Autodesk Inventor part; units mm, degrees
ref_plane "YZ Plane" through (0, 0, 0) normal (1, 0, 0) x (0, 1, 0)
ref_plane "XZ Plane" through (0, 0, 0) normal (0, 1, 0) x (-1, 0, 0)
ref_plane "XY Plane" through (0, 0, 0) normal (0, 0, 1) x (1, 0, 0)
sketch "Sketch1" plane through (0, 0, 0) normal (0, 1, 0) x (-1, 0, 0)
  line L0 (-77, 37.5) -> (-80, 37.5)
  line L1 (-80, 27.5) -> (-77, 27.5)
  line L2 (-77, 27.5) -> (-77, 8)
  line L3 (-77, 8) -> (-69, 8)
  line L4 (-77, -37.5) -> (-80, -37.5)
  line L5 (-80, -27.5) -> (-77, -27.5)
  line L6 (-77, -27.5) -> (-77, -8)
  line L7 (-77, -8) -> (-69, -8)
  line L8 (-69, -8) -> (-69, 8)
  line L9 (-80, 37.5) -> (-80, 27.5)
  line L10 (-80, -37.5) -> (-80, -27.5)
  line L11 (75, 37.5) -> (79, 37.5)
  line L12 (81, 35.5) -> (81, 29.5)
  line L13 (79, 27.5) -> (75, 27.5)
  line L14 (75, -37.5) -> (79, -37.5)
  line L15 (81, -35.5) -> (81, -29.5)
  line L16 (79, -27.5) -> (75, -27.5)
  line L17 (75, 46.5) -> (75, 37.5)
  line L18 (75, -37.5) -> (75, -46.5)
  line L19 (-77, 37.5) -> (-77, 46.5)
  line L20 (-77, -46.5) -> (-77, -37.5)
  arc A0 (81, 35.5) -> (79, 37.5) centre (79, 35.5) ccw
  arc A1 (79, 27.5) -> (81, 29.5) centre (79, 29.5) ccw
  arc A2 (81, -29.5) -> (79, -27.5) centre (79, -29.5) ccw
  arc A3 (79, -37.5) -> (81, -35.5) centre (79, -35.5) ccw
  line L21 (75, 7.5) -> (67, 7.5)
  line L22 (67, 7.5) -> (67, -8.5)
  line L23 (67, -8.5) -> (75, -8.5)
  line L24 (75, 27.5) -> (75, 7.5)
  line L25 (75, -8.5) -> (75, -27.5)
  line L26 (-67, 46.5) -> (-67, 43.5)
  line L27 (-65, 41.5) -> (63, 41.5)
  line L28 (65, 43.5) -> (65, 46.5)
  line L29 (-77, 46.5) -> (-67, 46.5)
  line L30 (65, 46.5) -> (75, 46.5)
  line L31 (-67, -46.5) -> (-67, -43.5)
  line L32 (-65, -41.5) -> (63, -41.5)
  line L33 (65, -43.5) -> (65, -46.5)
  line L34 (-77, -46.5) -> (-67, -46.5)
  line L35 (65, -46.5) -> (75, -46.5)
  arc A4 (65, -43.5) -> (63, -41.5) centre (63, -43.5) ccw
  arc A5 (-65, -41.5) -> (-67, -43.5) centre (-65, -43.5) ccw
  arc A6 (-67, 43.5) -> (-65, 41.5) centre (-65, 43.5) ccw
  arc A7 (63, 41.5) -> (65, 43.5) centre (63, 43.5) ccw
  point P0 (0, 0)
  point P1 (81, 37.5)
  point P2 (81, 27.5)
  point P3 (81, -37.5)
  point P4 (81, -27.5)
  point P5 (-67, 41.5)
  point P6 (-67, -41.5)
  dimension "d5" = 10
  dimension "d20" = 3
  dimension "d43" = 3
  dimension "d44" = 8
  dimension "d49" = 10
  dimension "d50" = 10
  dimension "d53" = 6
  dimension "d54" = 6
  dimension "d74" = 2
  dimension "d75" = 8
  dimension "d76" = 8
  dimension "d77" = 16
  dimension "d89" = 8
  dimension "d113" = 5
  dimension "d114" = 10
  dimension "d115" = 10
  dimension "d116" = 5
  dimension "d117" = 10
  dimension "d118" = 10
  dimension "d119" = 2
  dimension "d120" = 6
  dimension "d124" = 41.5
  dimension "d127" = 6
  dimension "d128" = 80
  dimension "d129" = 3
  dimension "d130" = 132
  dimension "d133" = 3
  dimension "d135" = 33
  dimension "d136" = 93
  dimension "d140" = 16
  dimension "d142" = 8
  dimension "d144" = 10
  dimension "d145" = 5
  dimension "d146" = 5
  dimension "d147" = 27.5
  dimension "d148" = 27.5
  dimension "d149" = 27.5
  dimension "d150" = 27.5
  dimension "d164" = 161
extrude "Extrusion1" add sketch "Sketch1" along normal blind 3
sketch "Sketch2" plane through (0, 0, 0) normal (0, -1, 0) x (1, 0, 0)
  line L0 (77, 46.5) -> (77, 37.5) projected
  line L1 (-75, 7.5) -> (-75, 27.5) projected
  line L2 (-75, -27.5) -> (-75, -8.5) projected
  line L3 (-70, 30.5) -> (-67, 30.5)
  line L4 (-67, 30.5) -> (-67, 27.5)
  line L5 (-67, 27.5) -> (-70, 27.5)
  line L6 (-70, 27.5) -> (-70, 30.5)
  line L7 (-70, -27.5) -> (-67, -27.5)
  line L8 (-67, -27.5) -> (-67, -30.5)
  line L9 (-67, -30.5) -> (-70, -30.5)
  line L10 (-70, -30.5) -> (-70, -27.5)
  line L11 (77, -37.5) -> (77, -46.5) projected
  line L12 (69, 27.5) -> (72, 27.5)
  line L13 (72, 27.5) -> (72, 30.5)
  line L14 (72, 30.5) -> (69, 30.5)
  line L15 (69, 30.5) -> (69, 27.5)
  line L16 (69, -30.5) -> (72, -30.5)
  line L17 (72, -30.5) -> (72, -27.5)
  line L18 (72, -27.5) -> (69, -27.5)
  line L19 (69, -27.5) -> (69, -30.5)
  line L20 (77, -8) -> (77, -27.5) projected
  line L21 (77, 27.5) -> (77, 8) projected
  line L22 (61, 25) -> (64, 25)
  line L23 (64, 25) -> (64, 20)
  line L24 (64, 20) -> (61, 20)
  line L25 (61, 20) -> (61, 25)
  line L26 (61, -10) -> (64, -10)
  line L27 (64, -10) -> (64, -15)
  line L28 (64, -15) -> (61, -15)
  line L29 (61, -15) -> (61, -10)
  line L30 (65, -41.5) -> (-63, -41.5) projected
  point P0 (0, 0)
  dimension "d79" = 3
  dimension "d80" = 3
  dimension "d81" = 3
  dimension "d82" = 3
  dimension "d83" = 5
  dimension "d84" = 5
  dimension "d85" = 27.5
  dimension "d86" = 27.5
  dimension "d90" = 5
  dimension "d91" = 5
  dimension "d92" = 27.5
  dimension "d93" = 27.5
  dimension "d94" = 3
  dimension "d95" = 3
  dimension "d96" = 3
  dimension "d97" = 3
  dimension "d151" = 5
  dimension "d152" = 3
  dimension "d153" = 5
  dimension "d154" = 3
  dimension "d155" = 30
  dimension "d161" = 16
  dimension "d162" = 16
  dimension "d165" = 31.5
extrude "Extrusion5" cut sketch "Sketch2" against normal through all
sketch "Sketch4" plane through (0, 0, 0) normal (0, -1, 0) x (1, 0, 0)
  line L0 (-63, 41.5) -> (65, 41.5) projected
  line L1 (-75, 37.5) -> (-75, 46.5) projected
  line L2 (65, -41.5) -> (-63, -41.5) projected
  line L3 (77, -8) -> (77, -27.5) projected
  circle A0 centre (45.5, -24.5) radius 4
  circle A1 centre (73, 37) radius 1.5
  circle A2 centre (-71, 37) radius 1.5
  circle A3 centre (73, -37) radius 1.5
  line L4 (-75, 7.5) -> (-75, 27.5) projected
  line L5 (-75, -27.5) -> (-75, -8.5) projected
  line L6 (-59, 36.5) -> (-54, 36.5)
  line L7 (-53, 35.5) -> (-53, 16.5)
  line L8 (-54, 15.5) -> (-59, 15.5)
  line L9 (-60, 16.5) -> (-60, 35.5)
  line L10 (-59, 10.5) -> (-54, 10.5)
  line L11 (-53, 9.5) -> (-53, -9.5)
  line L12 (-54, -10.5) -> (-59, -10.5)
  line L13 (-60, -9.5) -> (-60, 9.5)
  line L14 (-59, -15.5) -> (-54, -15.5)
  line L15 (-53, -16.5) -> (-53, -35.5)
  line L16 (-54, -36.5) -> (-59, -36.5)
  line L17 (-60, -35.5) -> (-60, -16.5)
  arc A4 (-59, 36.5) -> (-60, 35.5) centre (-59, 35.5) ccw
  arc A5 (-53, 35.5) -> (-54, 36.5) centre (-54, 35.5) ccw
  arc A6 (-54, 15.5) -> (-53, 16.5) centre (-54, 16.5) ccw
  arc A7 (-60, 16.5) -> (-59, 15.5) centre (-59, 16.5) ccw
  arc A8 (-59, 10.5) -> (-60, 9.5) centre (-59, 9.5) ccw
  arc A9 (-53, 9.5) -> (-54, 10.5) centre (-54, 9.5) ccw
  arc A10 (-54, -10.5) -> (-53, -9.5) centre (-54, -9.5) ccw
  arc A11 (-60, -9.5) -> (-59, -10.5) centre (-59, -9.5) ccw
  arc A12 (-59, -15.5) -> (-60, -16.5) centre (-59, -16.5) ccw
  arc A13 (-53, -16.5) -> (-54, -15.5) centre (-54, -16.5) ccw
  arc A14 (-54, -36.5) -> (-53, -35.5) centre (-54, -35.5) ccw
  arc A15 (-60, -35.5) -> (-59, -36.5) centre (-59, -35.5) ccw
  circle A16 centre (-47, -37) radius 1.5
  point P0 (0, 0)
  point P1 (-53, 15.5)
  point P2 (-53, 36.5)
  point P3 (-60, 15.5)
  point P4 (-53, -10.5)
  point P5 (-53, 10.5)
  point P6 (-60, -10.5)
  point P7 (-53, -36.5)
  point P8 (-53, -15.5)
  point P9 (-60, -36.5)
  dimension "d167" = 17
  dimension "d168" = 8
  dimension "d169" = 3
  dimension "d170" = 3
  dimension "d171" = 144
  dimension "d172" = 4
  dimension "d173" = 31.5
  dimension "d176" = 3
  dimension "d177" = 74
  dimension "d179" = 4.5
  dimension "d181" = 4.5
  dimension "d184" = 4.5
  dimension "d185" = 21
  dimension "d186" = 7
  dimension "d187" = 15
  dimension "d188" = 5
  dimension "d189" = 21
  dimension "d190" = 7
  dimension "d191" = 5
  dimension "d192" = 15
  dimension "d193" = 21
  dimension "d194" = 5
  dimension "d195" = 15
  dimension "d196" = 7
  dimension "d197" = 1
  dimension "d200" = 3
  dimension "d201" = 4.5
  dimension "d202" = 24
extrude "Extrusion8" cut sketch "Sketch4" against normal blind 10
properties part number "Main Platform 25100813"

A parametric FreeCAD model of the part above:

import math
import FreeCAD as App
import Part
import Sketcher
Q = App.Units.Quantity

doc = App.newDocument("Part")
params = doc.addObject("Spreadsheet::Sheet", "Params")
for row, (alias, value) in enumerate([
    ("sketch1_radius", "2 mm"),
    ("sketch1_width", "3 mm"),
    ("sketch1_width2", "8 mm"),
    ("sketch1_width3", "10 mm"),
    ("sketch1_height", "16 mm"),
    ("pad1_length", "3 mm"),
    ("sketch2_width", "3 mm"),
    ("sketch2_height", "5 mm"),
    ("sketch3_diameter", "8 mm"),
    ("sketch3_diameter2", "3 mm"),
    ("sketch3_radius", "1 mm"),
    ("sketch3_width", "5 mm"),
    ("sketch3_height", "19 mm"),
    ("pocket2_length", "10 mm"),
], start=1):
    params.set(f"A{row}", alias)
    params.set(f"B{row}", "=" + value)
    params.setAlias(f"B{row}", alias)

body = doc.addObject("PartDesign::Body", "Body")

# Sketch on XZ plane
sketch1 = body.newObject("Sketcher::SketchObject", "Sketch")
sketch1.AttachmentSupport = (doc.getObject("XZ_Plane"), [""])
sketch1.MapMode = "FlatFace"
sketch1.addGeometry([
    Part.LineSegment(App.Vector(77, 46.5, 0), App.Vector(77, 37.5, 0)),  # 0
    Part.LineSegment(App.Vector(77, 37.5, 0), App.Vector(80, 37.5, 0)),  # 1
    Part.LineSegment(App.Vector(80, 37.5, 0), App.Vector(80, 27.5, 0)),  # 2
    Part.LineSegment(App.Vector(80, 27.5, 0), App.Vector(77, 27.5, 0)),  # 3
    Part.LineSegment(App.Vector(77, 27.5, 0), App.Vector(77, 8, 0)),  # 4
    Part.LineSegment(App.Vector(77, 8, 0), App.Vector(69, 8, 0)),  # 5
    Part.LineSegment(App.Vector(69, 8, 0), App.Vector(69, -8, 0)),  # 6
    Part.LineSegment(App.Vector(69, -8, 0), App.Vector(77, -8, 0)),  # 7
    Part.LineSegment(App.Vector(77, -8, 0), App.Vector(77, -27.5, 0)),  # 8
    Part.LineSegment(App.Vector(77, -27.5, 0), App.Vector(80, -27.5, 0)),  # 9
    Part.LineSegment(App.Vector(80, -27.5, 0), App.Vector(80, -37.5, 0)),  # 10
    Part.LineSegment(App.Vector(80, -37.5, 0), App.Vector(77, -37.5, 0)),  # 11
    Part.LineSegment(App.Vector(77, -37.5, 0), App.Vector(77, -46.5, 0)),  # 12
    Part.LineSegment(App.Vector(77, -46.5, 0), App.Vector(67, -46.5, 0)),  # 13
    Part.LineSegment(App.Vector(67, -46.5, 0), App.Vector(67, -43.5, 0)),  # 14
    Part.ArcOfCircle(Part.Circle(App.Vector(65, -43.5, 0), App.Vector(0, 0, 1), 2), math.radians(0), math.radians(90)),  # 15
    Part.LineSegment(App.Vector(65, -41.5, 0), App.Vector(-63, -41.5, 0)),  # 16
    Part.ArcOfCircle(Part.Circle(App.Vector(-63, -43.5, 0), App.Vector(0, 0, 1), 2), math.radians(90), math.radians(180)),  # 17
    Part.LineSegment(App.Vector(-65, -43.5, 0), App.Vector(-65, -46.5, 0)),  # 18
    Part.LineSegment(App.Vector(-65, -46.5, 0), App.Vector(-75, -46.5, 0)),  # 19
    Part.LineSegment(App.Vector(-75, -46.5, 0), App.Vector(-75, -37.5, 0)),  # 20
    Part.LineSegment(App.Vector(-75, -37.5, 0), App.Vector(-79, -37.5, 0)),  # 21
    Part.ArcOfCircle(Part.Circle(App.Vector(-79, -35.5, 0), App.Vector(0, 0, 1), 2), math.radians(180), math.radians(270)),  # 22
    Part.LineSegment(App.Vector(-81, -35.5, 0), App.Vector(-81, -29.5, 0)),  # 23
    Part.ArcOfCircle(Part.Circle(App.Vector(-79, -29.5, 0), App.Vector(0, 0, 1), 2), math.radians(90), math.radians(180)),  # 24
    Part.LineSegment(App.Vector(-79, -27.5, 0), App.Vector(-75, -27.5, 0)),  # 25
    Part.LineSegment(App.Vector(-75, -27.5, 0), App.Vector(-75, -8.5, 0)),  # 26
    Part.LineSegment(App.Vector(-75, -8.5, 0), App.Vector(-67, -8.5, 0)),  # 27
    Part.LineSegment(App.Vector(-67, -8.5, 0), App.Vector(-67, 7.5, 0)),  # 28
    Part.LineSegment(App.Vector(-67, 7.5, 0), App.Vector(-75, 7.5, 0)),  # 29
    Part.LineSegment(App.Vector(-75, 7.5, 0), App.Vector(-75, 27.5, 0)),  # 30
    Part.LineSegment(App.Vector(-75, 27.5, 0), App.Vector(-79, 27.5, 0)),  # 31
    Part.ArcOfCircle(Part.Circle(App.Vector(-79, 29.5, 0), App.Vector(0, 0, 1), 2), math.radians(180), math.radians(270)),  # 32
    Part.LineSegment(App.Vector(-81, 29.5, 0), App.Vector(-81, 35.5, 0)),  # 33
    Part.ArcOfCircle(Part.Circle(App.Vector(-79, 35.5, 0), App.Vector(0, 0, 1), 2), math.radians(90), math.radians(180)),  # 34
    Part.LineSegment(App.Vector(-79, 37.5, 0), App.Vector(-75, 37.5, 0)),  # 35
    Part.LineSegment(App.Vector(-75, 37.5, 0), App.Vector(-75, 46.5, 0)),  # 36
    Part.LineSegment(App.Vector(-75, 46.5, 0), App.Vector(-65, 46.5, 0)),  # 37
    Part.LineSegment(App.Vector(-65, 46.5, 0), App.Vector(-65, 43.5, 0)),  # 38
    Part.ArcOfCircle(Part.Circle(App.Vector(-63, 43.5, 0), App.Vector(0, 0, 1), 2), math.radians(180), math.radians(270)),  # 39
    Part.LineSegment(App.Vector(-63, 41.5, 0), App.Vector(65, 41.5, 0)),  # 40
    Part.ArcOfCircle(Part.Circle(App.Vector(65, 43.5, 0), App.Vector(0, 0, 1), 2), math.radians(-90), math.radians(0)),  # 41
    Part.LineSegment(App.Vector(67, 43.5, 0), App.Vector(67, 46.5, 0)),  # 42
    Part.LineSegment(App.Vector(67, 46.5, 0), App.Vector(77, 46.5, 0)),  # 43
], False)
sketch1.addConstraint([
    Sketcher.Constraint("Coincident", 0, 2, 1, 1),
    Sketcher.Constraint("Coincident", 1, 2, 2, 1),
    Sketcher.Constraint("Coincident", 2, 2, 3, 1),
    Sketcher.Constraint("Coincident", 3, 2, 4, 1),
    Sketcher.Constraint("Coincident", 4, 2, 5, 1),
    Sketcher.Constraint("Coincident", 5, 2, 6, 1),
    Sketcher.Constraint("Coincident", 6, 2, 7, 1),
    Sketcher.Constraint("Coincident", 7, 2, 8, 1),
    Sketcher.Constraint("Coincident", 8, 2, 9, 1),
    Sketcher.Constraint("Coincident", 9, 2, 10, 1),
    Sketcher.Constraint("Coincident", 10, 2, 11, 1),
    Sketcher.Constraint("Coincident", 11, 2, 12, 1),
    Sketcher.Constraint("Coincident", 12, 2, 13, 1),
    Sketcher.Constraint("Coincident", 13, 2, 14, 1),
    Sketcher.Constraint("Tangent", 14, 2, 15, 1),
    Sketcher.Constraint("Tangent", 15, 2, 16, 1),
    Sketcher.Constraint("Tangent", 16, 2, 17, 1),
    Sketcher.Constraint("Tangent", 17, 2, 18, 1),
    Sketcher.Constraint("Coincident", 18, 2, 19, 1),
    Sketcher.Constraint("Coincident", 19, 2, 20, 1),
    Sketcher.Constraint("Coincident", 20, 2, 21, 1),
    Sketcher.Constraint("Tangent", 21, 2, 22, 2),
    Sketcher.Constraint("Tangent", 22, 1, 23, 1),
    Sketcher.Constraint("Tangent", 23, 2, 24, 2),
    Sketcher.Constraint("Tangent", 24, 1, 25, 1),
    Sketcher.Constraint("Coincident", 25, 2, 26, 1),
    Sketcher.Constraint("Coincident", 26, 2, 27, 1),
    Sketcher.Constraint("Coincident", 27, 2, 28, 1),
    Sketcher.Constraint("Coincident", 28, 2, 29, 1),
    Sketcher.Constraint("Coincident", 29, 2, 30, 1),
    Sketcher.Constraint("Coincident", 30, 2, 31, 1),
    Sketcher.Constraint("Tangent", 31, 2, 32, 2),
    Sketcher.Constraint("Tangent", 32, 1, 33, 1),
    Sketcher.Constraint("Tangent", 33, 2, 34, 2),
    Sketcher.Constraint("Tangent", 34, 1, 35, 1),
    Sketcher.Constraint("Coincident", 35, 2, 36, 1),
    Sketcher.Constraint("Coincident", 36, 2, 37, 1),
    Sketcher.Constraint("Coincident", 37, 2, 38, 1),
    Sketcher.Constraint("Tangent", 38, 2, 39, 1),
    Sketcher.Constraint("Tangent", 39, 2, 40, 1),
    Sketcher.Constraint("Tangent", 40, 2, 41, 1),
    Sketcher.Constraint("Tangent", 41, 2, 42, 1),
    Sketcher.Constraint("Coincident", 42, 2, 43, 1),
    Sketcher.Constraint("Coincident", 43, 2, 0, 1),
    Sketcher.Constraint("Vertical", 0),
    Sketcher.Constraint("Horizontal", 1),
    Sketcher.Constraint("Vertical", 2),
    Sketcher.Constraint("Horizontal", 3),
    Sketcher.Constraint("Vertical", 4),
    Sketcher.Constraint("Horizontal", 5),
    Sketcher.Constraint("Vertical", 6),
    Sketcher.Constraint("Horizontal", 7),
    Sketcher.Constraint("Vertical", 8),
    Sketcher.Constraint("Horizontal", 9),
    Sketcher.Constraint("Vertical", 10),
    Sketcher.Constraint("Horizontal", 11),
    Sketcher.Constraint("Vertical", 12),
    Sketcher.Constraint("Horizontal", 13),
    Sketcher.Constraint("Vertical", 14),
    Sketcher.Constraint("Horizontal", 16),
    Sketcher.Constraint("Vertical", 18),
    Sketcher.Constraint("Horizontal", 19),
    Sketcher.Constraint("Vertical", 20),
    Sketcher.Constraint("Horizontal", 21),
    Sketcher.Constraint("Vertical", 23),
    Sketcher.Constraint("Horizontal", 25),
    Sketcher.Constraint("Vertical", 26),
    Sketcher.Constraint("Horizontal", 27),
    Sketcher.Constraint("Vertical", 28),
    Sketcher.Constraint("Horizontal", 29),
    Sketcher.Constraint("Vertical", 30),
    Sketcher.Constraint("Horizontal", 31),
    Sketcher.Constraint("Vertical", 33),
    Sketcher.Constraint("Horizontal", 35),
    Sketcher.Constraint("Vertical", 36),
    Sketcher.Constraint("Horizontal", 37),
    Sketcher.Constraint("Vertical", 38),
    Sketcher.Constraint("Horizontal", 40),
    Sketcher.Constraint("Vertical", 42),
    Sketcher.Constraint("Horizontal", 43),
    Sketcher.Constraint("Equal", 15, 17),
    Sketcher.Constraint("Equal", 17, 22),
    Sketcher.Constraint("Equal", 22, 24),
    Sketcher.Constraint("Equal", 24, 32),
    Sketcher.Constraint("Equal", 32, 34),
    Sketcher.Constraint("Equal", 34, 39),
    Sketcher.Constraint("Equal", 39, 41),
    Sketcher.Constraint("Symmetric", 24, 3, 32, 3, -1),
    Sketcher.Constraint("Symmetric", 17, 3, 39, 3, -1),
    Sketcher.Constraint("Symmetric", 4, 2, 7, 2, -1),
    Sketcher.Constraint("Symmetric", 2, 2, 9, 2, -1),
    Sketcher.Constraint("Symmetric", 0, 2, 11, 2, -1),
    Sketcher.Constraint("Symmetric", 20, 2, 35, 2, -1),
    Sketcher.Constraint("Symmetric", 13, 2, 42, 2, -1),
    Sketcher.Constraint("Horizontal", 13, 2, 18, 2),
    Sketcher.Constraint("Horizontal", 11, 2, 20, 2),
    Sketcher.Constraint("Horizontal", 9, 2, 24, 1),
    Sketcher.Constraint("Horizontal", 37, 2, 42, 2),
    Sketcher.Constraint("Vertical", 0, 2, 3, 2),
    Sketcher.Constraint("Vertical", 20, 2, 25, 2),
    Sketcher.Constraint("Vertical", 26, 2, 29, 2),
    Sketcher.Constraint("Equal", 13, 19),
    Sketcher.Constraint("Equal", 7, 27),
    Sketcher.Constraint("Equal", 43, 2),
    Sketcher.Constraint("Equal", 11, 14),
    Sketcher.Constraint("Equal", 6, 28),
    Sketcher.Constraint("Radius", 15, Q("2 mm")),
    Sketcher.Constraint("DistanceX", 1, 1, 1, 2, Q("3 mm")),
    Sketcher.Constraint("DistanceX", 5, 2, 5, 1, Q("8 mm")),
    Sketcher.Constraint("DistanceX", 13, 2, 13, 1, Q("10 mm")),
    Sketcher.Constraint("DistanceY", 6, 2, 6, 1, Q("16 mm")),
    Sketcher.Constraint("DistanceX", -1, 1, 1, 2, Q("80 mm")),
    Sketcher.Constraint("DistanceX", 22, 3, 17, 3, Q("16 mm")),
    Sketcher.Constraint("DistanceY", 17, 3, 22, 3, Q("8 mm")),
    Sketcher.Constraint("DistanceY", -1, 1, 2, 2, Q("27.5 mm")),
    Sketcher.Constraint("DistanceX", 16, 2, 16, 1, Q("128 mm")),
    Sketcher.Constraint("DistanceY", 26, 1, 26, 2, Q("19 mm")),
])
sketch1.setExpression("Constraints[106]", "Params.sketch1_radius")
sketch1.setExpression("Constraints[107]", "Params.sketch1_width")
sketch1.setExpression("Constraints[108]", "Params.sketch1_width2")
sketch1.setExpression("Constraints[109]", "Params.sketch1_width3")
sketch1.setExpression("Constraints[110]", "Params.sketch1_height")
pad1 = body.newObject("PartDesign::Pad", "Pad")
pad1.Profile = sketch1
pad1.setExpression("Length", "Params.pad1_length")
pad1.Reversed = True

# Sketch on XZ plane
sketch2 = body.newObject("Sketcher::SketchObject", "Sketch001")
sketch2.AttachmentSupport = (doc.getObject("XZ_Plane"), [""])
sketch2.MapMode = "FlatFace"
sketch2.addGeometry([
    Part.LineSegment(App.Vector(-67, 30.5, 0), App.Vector(-70, 30.5, 0)),  # 0
    Part.LineSegment(App.Vector(-70, 30.5, 0), App.Vector(-70, 27.5, 0)),  # 1
    Part.LineSegment(App.Vector(-70, 27.5, 0), App.Vector(-67, 27.5, 0)),  # 2
    Part.LineSegment(App.Vector(-67, 27.5, 0), App.Vector(-67, 30.5, 0)),  # 3
    Part.LineSegment(App.Vector(-67, -27.5, 0), App.Vector(-70, -27.5, 0)),  # 4
    Part.LineSegment(App.Vector(-70, -27.5, 0), App.Vector(-70, -30.5, 0)),  # 5
    Part.LineSegment(App.Vector(-70, -30.5, 0), App.Vector(-67, -30.5, 0)),  # 6
    Part.LineSegment(App.Vector(-67, -30.5, 0), App.Vector(-67, -27.5, 0)),  # 7
    Part.LineSegment(App.Vector(69, 30.5, 0), App.Vector(69, 27.5, 0)),  # 8
    Part.LineSegment(App.Vector(69, 27.5, 0), App.Vector(72, 27.5, 0)),  # 9
    Part.LineSegment(App.Vector(72, 27.5, 0), App.Vector(72, 30.5, 0)),  # 10
    Part.LineSegment(App.Vector(72, 30.5, 0), App.Vector(69, 30.5, 0)),  # 11
    Part.LineSegment(App.Vector(69, -27.5, 0), App.Vector(69, -30.5, 0)),  # 12
    Part.LineSegment(App.Vector(69, -30.5, 0), App.Vector(72, -30.5, 0)),  # 13
    Part.LineSegment(App.Vector(72, -30.5, 0), App.Vector(72, -27.5, 0)),  # 14
    Part.LineSegment(App.Vector(72, -27.5, 0), App.Vector(69, -27.5, 0)),  # 15
    Part.LineSegment(App.Vector(64, 25, 0), App.Vector(61, 25, 0)),  # 16
    Part.LineSegment(App.Vector(61, 25, 0), App.Vector(61, 20, 0)),  # 17
    Part.LineSegment(App.Vector(61, 20, 0), App.Vector(64, 20, 0)),  # 18
    Part.LineSegment(App.Vector(64, 20, 0), App.Vector(64, 25, 0)),  # 19
    Part.LineSegment(App.Vector(64, -10, 0), App.Vector(61, -10, 0)),  # 20
    Part.LineSegment(App.Vector(61, -10, 0), App.Vector(61, -15, 0)),  # 21
    Part.LineSegment(App.Vector(61, -15, 0), App.Vector(64, -15, 0)),  # 22
    Part.LineSegment(App.Vector(64, -15, 0), App.Vector(64, -10, 0)),  # 23
], False)
sketch2.addConstraint([
    Sketcher.Constraint("Coincident", 0, 2, 1, 1),
    Sketcher.Constraint("Coincident", 1, 2, 2, 1),
    Sketcher.Constraint("Coincident", 2, 2, 3, 1),
    Sketcher.Constraint("Coincident", 3, 2, 0, 1),
    Sketcher.Constraint("Coincident", 4, 2, 5, 1),
    Sketcher.Constraint("Coincident", 5, 2, 6, 1),
    Sketcher.Constraint("Coincident", 6, 2, 7, 1),
    Sketcher.Constraint("Coincident", 7, 2, 4, 1),
    Sketcher.Constraint("Coincident", 8, 2, 9, 1),
    Sketcher.Constraint("Coincident", 9, 2, 10, 1),
    Sketcher.Constraint("Coincident", 10, 2, 11, 1),
    Sketcher.Constraint("Coincident", 11, 2, 8, 1),
    Sketcher.Constraint("Coincident", 12, 2, 13, 1),
    Sketcher.Constraint("Coincident", 13, 2, 14, 1),
    Sketcher.Constraint("Coincident", 14, 2, 15, 1),
    Sketcher.Constraint("Coincident", 15, 2, 12, 1),
    Sketcher.Constraint("Coincident", 16, 2, 17, 1),
    Sketcher.Constraint("Coincident", 17, 2, 18, 1),
    Sketcher.Constraint("Coincident", 18, 2, 19, 1),
    Sketcher.Constraint("Coincident", 19, 2, 16, 1),
    Sketcher.Constraint("Coincident", 20, 2, 21, 1),
    Sketcher.Constraint("Coincident", 21, 2, 22, 1),
    Sketcher.Constraint("Coincident", 22, 2, 23, 1),
    Sketcher.Constraint("Coincident", 23, 2, 20, 1),
    Sketcher.Constraint("Horizontal", 0),
    Sketcher.Constraint("Vertical", 1),
    Sketcher.Constraint("Horizontal", 2),
    Sketcher.Constraint("Vertical", 3),
    Sketcher.Constraint("Horizontal", 4),
    Sketcher.Constraint("Vertical", 5),
    Sketcher.Constraint("Horizontal", 6),
    Sketcher.Constraint("Vertical", 7),
    Sketcher.Constraint("Vertical", 8),
    Sketcher.Constraint("Horizontal", 9),
    Sketcher.Constraint("Vertical", 10),
    Sketcher.Constraint("Horizontal", 11),
    Sketcher.Constraint("Vertical", 12),
    Sketcher.Constraint("Horizontal", 13),
    Sketcher.Constraint("Vertical", 14),
    Sketcher.Constraint("Horizontal", 15),
    Sketcher.Constraint("Horizontal", 16),
    Sketcher.Constraint("Vertical", 17),
    Sketcher.Constraint("Horizontal", 18),
    Sketcher.Constraint("Vertical", 19),
    Sketcher.Constraint("Horizontal", 20),
    Sketcher.Constraint("Vertical", 21),
    Sketcher.Constraint("Horizontal", 22),
    Sketcher.Constraint("Vertical", 23),
    Sketcher.Constraint("Symmetric", 1, 2, 4, 2, -1),
    Sketcher.Constraint("Symmetric", 3, 2, 6, 2, -1),
    Sketcher.Constraint("Symmetric", 11, 2, 12, 2, -1),
    Sketcher.Constraint("Symmetric", 9, 2, 14, 2, -1),
    Sketcher.Constraint("Horizontal", 2, 2, 8, 2),
    Sketcher.Constraint("Horizontal", 3, 2, 10, 2),
    Sketcher.Constraint("Vertical", 17, 2, 20, 2),
    Sketcher.Constraint("Vertical", 19, 2, 22, 2),
    Sketcher.Constraint("Equal", 6, 9),
    Sketcher.Constraint("Equal", 15, 16),
    Sketcher.Constraint("Equal", 22, 1),
    Sketcher.Constraint("Equal", 19, 21),
    Sketcher.Constraint("DistanceX", 0, 2, 0, 1, Q("3 mm")),
    Sketcher.Constraint("DistanceY", 17, 2, 17, 1, Q("5 mm")),
    Sketcher.Constraint("DistanceX", 18, 2, 8, 2, Q("5 mm")),
    Sketcher.Constraint("DistanceY", 20, 2, 17, 2, Q("30 mm")),
    Sketcher.Constraint("DistanceY", -1, 1, 1, 2, Q("27.5 mm")),
    Sketcher.Constraint("DistanceX", 0, 2, -1, 1, Q("70 mm")),
    Sketcher.Constraint("DistanceX", -1, 1, 8, 2, Q("69 mm")),
    Sketcher.Constraint("DistanceY", -1, 1, 16, 2, Q("25 mm")),
])
sketch2.setExpression("Constraints[60]", "Params.sketch2_width")
sketch2.setExpression("Constraints[61]", "Params.sketch2_height")
pocket1 = body.newObject("PartDesign::Pocket", "Pocket")
pocket1.Profile = sketch2
pocket1.Type = "ThroughAll"

# Sketch on XZ plane
sketch3 = body.newObject("Sketcher::SketchObject", "Sketch002")
sketch3.AttachmentSupport = (doc.getObject("XZ_Plane"), [""])
sketch3.MapMode = "FlatFace"
sketch3.addGeometry([
    Part.Circle(App.Vector(45.5, -24.5, 0), App.Vector(0, 0, 1), 4),  # 0
    Part.Circle(App.Vector(73, 37, 0), App.Vector(0, 0, 1), 1.5),  # 1
    Part.Circle(App.Vector(-71, 37, 0), App.Vector(0, 0, 1), 1.5),  # 2
    Part.Circle(App.Vector(73, -37, 0), App.Vector(0, 0, 1), 1.5),  # 3
    Part.LineSegment(App.Vector(-54, 36.5, 0), App.Vector(-59, 36.5, 0)),  # 4
    Part.ArcOfCircle(Part.Circle(App.Vector(-59, 35.5, 0), App.Vector(0, 0, 1), 1), math.radians(90), math.radians(180)),  # 5
    Part.LineSegment(App.Vector(-60, 35.5, 0), App.Vector(-60, 16.5, 0)),  # 6
    Part.ArcOfCircle(Part.Circle(App.Vector(-59, 16.5, 0), App.Vector(0, 0, 1), 1), math.radians(180), math.radians(270)),  # 7
    Part.LineSegment(App.Vector(-59, 15.5, 0), App.Vector(-54, 15.5, 0)),  # 8
    Part.ArcOfCircle(Part.Circle(App.Vector(-54, 16.5, 0), App.Vector(0, 0, 1), 1), math.radians(-90), math.radians(0)),  # 9
    Part.LineSegment(App.Vector(-53, 16.5, 0), App.Vector(-53, 35.5, 0)),  # 10
    Part.ArcOfCircle(Part.Circle(App.Vector(-54, 35.5, 0), App.Vector(0, 0, 1), 1), math.radians(0), math.radians(90)),  # 11
    Part.LineSegment(App.Vector(-54, 10.5, 0), App.Vector(-59, 10.5, 0)),  # 12
    Part.ArcOfCircle(Part.Circle(App.Vector(-59, 9.5, 0), App.Vector(0, 0, 1), 1), math.radians(90), math.radians(180)),  # 13
    Part.LineSegment(App.Vector(-60, 9.5, 0), App.Vector(-60, -9.5, 0)),  # 14
    Part.ArcOfCircle(Part.Circle(App.Vector(-59, -9.5, 0), App.Vector(0, 0, 1), 1), math.radians(180), math.radians(270)),  # 15
    Part.LineSegment(App.Vector(-59, -10.5, 0), App.Vector(-54, -10.5, 0)),  # 16
    Part.ArcOfCircle(Part.Circle(App.Vector(-54, -9.5, 0), App.Vector(0, 0, 1), 1), math.radians(-90), math.radians(0)),  # 17
    Part.LineSegment(App.Vector(-53, -9.5, 0), App.Vector(-53, 9.5, 0)),  # 18
    Part.ArcOfCircle(Part.Circle(App.Vector(-54, 9.5, 0), App.Vector(0, 0, 1), 1), math.radians(0), math.radians(90)),  # 19
    Part.LineSegment(App.Vector(-54, -15.5, 0), App.Vector(-59, -15.5, 0)),  # 20
    Part.ArcOfCircle(Part.Circle(App.Vector(-59, -16.5, 0), App.Vector(0, 0, 1), 1), math.radians(90), math.radians(180)),  # 21
    Part.LineSegment(App.Vector(-60, -16.5, 0), App.Vector(-60, -35.5, 0)),  # 22
    Part.ArcOfCircle(Part.Circle(App.Vector(-59, -35.5, 0), App.Vector(0, 0, 1), 1), math.radians(180), math.radians(270)),  # 23
    Part.LineSegment(App.Vector(-59, -36.5, 0), App.Vector(-54, -36.5, 0)),  # 24
    Part.ArcOfCircle(Part.Circle(App.Vector(-54, -35.5, 0), App.Vector(0, 0, 1), 1), math.radians(-90), math.radians(0)),  # 25
    Part.LineSegment(App.Vector(-53, -35.5, 0), App.Vector(-53, -16.5, 0)),  # 26
    Part.ArcOfCircle(Part.Circle(App.Vector(-54, -16.5, 0), App.Vector(0, 0, 1), 1), math.radians(0), math.radians(90)),  # 27
    Part.Circle(App.Vector(-47, -37, 0), App.Vector(0, 0, 1), 1.5),  # 28
], False)
sketch3.addConstraint([
    Sketcher.Constraint("Tangent", 4, 2, 5, 1),
    Sketcher.Constraint("Tangent", 5, 2, 6, 1),
    Sketcher.Constraint("Tangent", 6, 2, 7, 1),
    Sketcher.Constraint("Tangent", 7, 2, 8, 1),
    Sketcher.Constraint("Tangent", 8, 2, 9, 1),
    Sketcher.Constraint("Tangent", 9, 2, 10, 1),
    Sketcher.Constraint("Tangent", 10, 2, 11, 1),
    Sketcher.Constraint("Tangent", 11, 2, 4, 1),
    Sketcher.Constraint("Tangent", 12, 2, 13, 1),
    Sketcher.Constraint("Tangent", 13, 2, 14, 1),
    Sketcher.Constraint("Tangent", 14, 2, 15, 1),
    Sketcher.Constraint("Tangent", 15, 2, 16, 1),
    Sketcher.Constraint("Tangent", 16, 2, 17, 1),
    Sketcher.Constraint("Tangent", 17, 2, 18, 1),
    Sketcher.Constraint("Tangent", 18, 2, 19, 1),
    Sketcher.Constraint("Tangent", 19, 2, 12, 1),
    Sketcher.Constraint("Tangent", 20, 2, 21, 1),
    Sketcher.Constraint("Tangent", 21, 2, 22, 1),
    Sketcher.Constraint("Tangent", 22, 2, 23, 1),
    Sketcher.Constraint("Tangent", 23, 2, 24, 1),
    Sketcher.Constraint("Tangent", 24, 2, 25, 1),
    Sketcher.Constraint("Tangent", 25, 2, 26, 1),
    Sketcher.Constraint("Tangent", 26, 2, 27, 1),
    Sketcher.Constraint("Tangent", 27, 2, 20, 1),
    Sketcher.Constraint("Horizontal", 4),
    Sketcher.Constraint("Vertical", 6),
    Sketcher.Constraint("Horizontal", 8),
    Sketcher.Constraint("Vertical", 10),
    Sketcher.Constraint("Horizontal", 12),
    Sketcher.Constraint("Vertical", 14),
    Sketcher.Constraint("Horizontal", 16),
    Sketcher.Constraint("Vertical", 18),
    Sketcher.Constraint("Horizontal", 20),
    Sketcher.Constraint("Vertical", 22),
    Sketcher.Constraint("Horizontal", 24),
    Sketcher.Constraint("Vertical", 26),
    Sketcher.Constraint("Equal", 1, 2),
    Sketcher.Constraint("Equal", 2, 3),
    Sketcher.Constraint("Equal", 5, 7),
    Sketcher.Constraint("Equal", 7, 9),
    Sketcher.Constraint("Equal", 9, 11),
    Sketcher.Constraint("Equal", 11, 13),
    Sketcher.Constraint("Equal", 13, 15),
    Sketcher.Constraint("Equal", 15, 17),
    Sketcher.Constraint("Equal", 17, 19),
    Sketcher.Constraint("Equal", 19, 21),
    Sketcher.Constraint("Equal", 21, 23),
    Sketcher.Constraint("Equal", 23, 25),
    Sketcher.Constraint("Equal", 25, 27),
    Sketcher.Constraint("Equal", 3, 28),
    Sketcher.Constraint("Symmetric", 1, 3, 3, 3, -1),
    Sketcher.Constraint("Symmetric", 7, 3, 21, 3, -1),
    Sketcher.Constraint("Symmetric", 11, 3, 25, 3, -1),
    Sketcher.Constraint("Horizontal", 1, 3, 2, 3),
    Sketcher.Constraint("Horizontal", 3, 3, 28, 3),
    Sketcher.Constraint("Vertical", 7, 3, 13, 3),
    Sketcher.Constraint("Vertical", 11, 3, 17, 3),
    Sketcher.Constraint("Equal", 10, 14),
    Sketcher.Constraint("Diameter", 0, Q("8 mm")),
    Sketcher.Constraint("Diameter", 1, Q("3 mm")),
    Sketcher.Constraint("Radius", 5, Q("1 mm")),
    Sketcher.Constraint("DistanceX", 4, 2, 4, 1, Q("5 mm")),
    Sketcher.Constraint("DistanceX", 2, 3, 1, 3, Q("144 mm")),
    Sketcher.Constraint("DistanceY", 3, 3, 1, 3, Q("74 mm")),
    Sketcher.Constraint("DistanceX", 2, 3, 9, 3, Q("17 mm")),
    Sketcher.Constraint("DistanceY", 13, 3, 7, 3, Q("7 mm")),
    Sketcher.Constraint("DistanceY", 21, 3, 15, 3, Q("7 mm")),
    Sketcher.Constraint("DistanceX", 25, 3, 28, 3, Q("7 mm")),
    Sketcher.Constraint("DistanceY", 6, 2, 6, 1, Q("19 mm")),
    Sketcher.Constraint("DistanceX", -1, 1, 1, 3, Q("73 mm")),
    Sketcher.Constraint("DistanceY", 0, 3, 5, 3, Q("60 mm")),
    Sketcher.Constraint("DistanceX", -1, 1, 0, 3, Q("45.5 mm")),
])
sketch3.setExpression("Constraints[58]", "Params.sketch3_diameter")
sketch3.setExpression("Constraints[59]", "Params.sketch3_diameter2")
sketch3.setExpression("Constraints[60]", "Params.sketch3_radius")
sketch3.setExpression("Constraints[61]", "Params.sketch3_width")
sketch3.setExpression("Constraints[68]", "Params.sketch3_height")
pocket2 = body.newObject("PartDesign::Pocket", "Pocket001")
pocket2.Profile = sketch3
pocket2.setExpression("Length", "Params.pocket2_length")

doc.recompute()
